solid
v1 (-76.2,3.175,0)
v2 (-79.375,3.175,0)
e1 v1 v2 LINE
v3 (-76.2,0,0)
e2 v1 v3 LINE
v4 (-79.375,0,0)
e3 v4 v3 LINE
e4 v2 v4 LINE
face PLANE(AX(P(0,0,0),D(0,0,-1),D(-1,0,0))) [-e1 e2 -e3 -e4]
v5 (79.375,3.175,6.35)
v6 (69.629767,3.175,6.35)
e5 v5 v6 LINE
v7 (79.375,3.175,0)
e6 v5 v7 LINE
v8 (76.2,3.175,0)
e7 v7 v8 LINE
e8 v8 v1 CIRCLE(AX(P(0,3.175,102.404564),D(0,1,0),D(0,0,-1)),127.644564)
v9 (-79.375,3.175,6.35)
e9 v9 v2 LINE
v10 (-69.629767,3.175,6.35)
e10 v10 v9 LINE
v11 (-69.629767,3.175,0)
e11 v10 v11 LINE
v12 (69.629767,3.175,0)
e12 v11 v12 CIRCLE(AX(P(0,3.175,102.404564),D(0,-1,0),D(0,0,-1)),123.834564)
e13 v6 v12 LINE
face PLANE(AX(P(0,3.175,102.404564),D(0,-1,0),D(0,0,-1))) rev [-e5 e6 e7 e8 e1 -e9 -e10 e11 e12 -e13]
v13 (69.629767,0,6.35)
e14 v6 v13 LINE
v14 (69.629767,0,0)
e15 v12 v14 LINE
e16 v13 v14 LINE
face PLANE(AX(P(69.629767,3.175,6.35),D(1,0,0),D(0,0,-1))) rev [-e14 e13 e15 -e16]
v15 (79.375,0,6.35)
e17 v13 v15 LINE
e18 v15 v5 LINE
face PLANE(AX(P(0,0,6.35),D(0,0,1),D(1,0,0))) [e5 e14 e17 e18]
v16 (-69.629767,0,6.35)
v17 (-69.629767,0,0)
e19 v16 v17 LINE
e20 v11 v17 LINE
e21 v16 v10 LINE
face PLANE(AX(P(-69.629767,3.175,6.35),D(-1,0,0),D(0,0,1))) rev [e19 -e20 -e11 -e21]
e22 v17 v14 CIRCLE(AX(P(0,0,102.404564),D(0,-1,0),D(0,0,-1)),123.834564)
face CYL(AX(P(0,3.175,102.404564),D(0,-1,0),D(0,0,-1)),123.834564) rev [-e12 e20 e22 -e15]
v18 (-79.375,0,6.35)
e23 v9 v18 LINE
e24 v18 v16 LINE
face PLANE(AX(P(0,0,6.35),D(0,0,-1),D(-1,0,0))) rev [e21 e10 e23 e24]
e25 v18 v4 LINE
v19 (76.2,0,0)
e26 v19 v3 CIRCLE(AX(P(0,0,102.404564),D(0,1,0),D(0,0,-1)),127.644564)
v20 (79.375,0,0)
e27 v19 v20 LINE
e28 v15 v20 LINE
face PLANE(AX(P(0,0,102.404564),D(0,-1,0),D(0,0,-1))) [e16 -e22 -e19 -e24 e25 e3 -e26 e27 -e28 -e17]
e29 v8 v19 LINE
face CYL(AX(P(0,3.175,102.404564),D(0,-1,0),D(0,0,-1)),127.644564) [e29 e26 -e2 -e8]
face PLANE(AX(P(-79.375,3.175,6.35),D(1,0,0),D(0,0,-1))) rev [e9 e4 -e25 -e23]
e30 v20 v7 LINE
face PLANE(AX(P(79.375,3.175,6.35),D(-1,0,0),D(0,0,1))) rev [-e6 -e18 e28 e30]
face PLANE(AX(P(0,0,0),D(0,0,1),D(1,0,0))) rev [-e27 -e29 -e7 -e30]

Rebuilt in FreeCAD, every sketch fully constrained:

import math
import FreeCAD as App
import Part
import Sketcher
Q = App.Units.Quantity

doc = App.newDocument("Part")
body = doc.addObject("PartDesign::Body", "Body")

sketch1 = body.newObject("Sketcher::SketchObject", "Sketch")
sketch1.AttachmentSupport = (doc.getObject("XZ_Plane"), [""])
sketch1.MapMode = "FlatFace"
sketch1.addGeometry([
    Part.LineSegment(App.Vector(-76, 0, 0), App.Vector(-70, 0, 0)),
    Part.ArcOfCircle(Part.Circle(App.Vector(0, 102, 0), App.Vector(0, 0, 1), 124), math.radians(-124), math.radians(-56)),
    Part.LineSegment(App.Vector(70, 0, 0), App.Vector(76, 0, 0)),
    Part.ArcOfCircle(Part.Circle(App.Vector(0, 102, 0), App.Vector(0, 0, 1), 128), math.radians(-127), math.radians(-53)),
], False)
sketch1.addConstraint([
    Sketcher.Constraint("Coincident", 0, 2, 1, 1),
    Sketcher.Constraint("Coincident", 1, 2, 2, 1),
    Sketcher.Constraint("Coincident", 2, 2, 3, 2),
    Sketcher.Constraint("Coincident", 3, 1, 0, 1),
    Sketcher.Constraint("Horizontal", 0),
    Sketcher.Constraint("Horizontal", 2),
    Sketcher.Constraint("Coincident", 3, 3, 1, 3),
    Sketcher.Constraint("Symmetric", 0, 2, 1, 2, -1, 1),
    Sketcher.Constraint("PointOnObject", 1, 3, -2),
    Sketcher.Constraint("DistanceX", -1, 1, 2, 2, Q("3 in")),
    Sketcher.Constraint("Radius", 1, 123.834564),
    Sketcher.Constraint("Radius", 3, 127.644564),
])
pad1 = body.newObject("PartDesign::Pad", "Pad")
pad1.Profile = sketch1
pad1.Length = Q("0.125 in")
pad1.Reversed = True

sketch2 = body.newObject("Sketcher::SketchObject", "Sketch001")
sketch2.AttachmentSupport = (doc.getObject("XY_Plane"), [""])
sketch2.MapMode = "FlatFace"
sketch2.addGeometry([
    Part.LineSegment(App.Vector(-79.4, 3.2, 0), App.Vector(-79.4, 0, 0)),
    Part.LineSegment(App.Vector(-79.4, 0, 0), App.Vector(-69.6, 0, 0)),
    Part.LineSegment(App.Vector(-69.6, 0, 0), App.Vector(-69.6, 3.2, 0)),
    Part.LineSegment(App.Vector(-69.6, 3.2, 0), App.Vector(-79.4, 3.2, 0)),
    Part.LineSegment(App.Vector(69.6, 3.2, 0), App.Vector(69.6, 0, 0)),
    Part.LineSegment(App.Vector(69.6, 0, 0), App.Vector(79.4, 0, 0)),
    Part.LineSegment(App.Vector(79.4, 0, 0), App.Vector(79.4, 3.2, 0)),
    Part.LineSegment(App.Vector(79.4, 3.2, 0), App.Vector(69.6, 3.2, 0)),
], False)
sketch2.addConstraint([
    Sketcher.Constraint("Coincident", 0, 2, 1, 1),
    Sketcher.Constraint("Coincident", 1, 2, 2, 1),
    Sketcher.Constraint("Coincident", 2, 2, 3, 1),
    Sketcher.Constraint("Coincident", 3, 2, 0, 1),
    Sketcher.Constraint("Coincident", 4, 2, 5, 1),
    Sketcher.Constraint("Coincident", 5, 2, 6, 1),
    Sketcher.Constraint("Coincident", 6, 2, 7, 1),
    Sketcher.Constraint("Coincident", 7, 2, 4, 1),
    Sketcher.Constraint("Vertical", 0),
    Sketcher.Constraint("Horizontal", 1),
    Sketcher.Constraint("Vertical", 2),
    Sketcher.Constraint("Horizontal", 3),
    Sketcher.Constraint("Vertical", 4),
    Sketcher.Constraint("Horizontal", 5),
    Sketcher.Constraint("Vertical", 6),
    Sketcher.Constraint("Horizontal", 7),
    Sketcher.Constraint("Symmetric", 1, 2, 4, 2, -1, 1),
    Sketcher.Constraint("Symmetric", 0, 2, 5, 2, -2),
    Sketcher.Constraint("Horizontal", 3, 2, 6, 2),
    Sketcher.Constraint("DistanceY", 0, 2, 0, 1, Q("0.125 in")),
    Sketcher.Constraint("DistanceX", 0, 2, 5, 2, Q("6.25 in")),
    Sketcher.Constraint("DistanceX", 1, 1, 1, 2, 9.745233),
])
pad2 = body.newObject("PartDesign::Pad", "Pad001")
pad2.Profile = sketch2
pad2.Length = Q("0.25 in")

doc.recompute()
